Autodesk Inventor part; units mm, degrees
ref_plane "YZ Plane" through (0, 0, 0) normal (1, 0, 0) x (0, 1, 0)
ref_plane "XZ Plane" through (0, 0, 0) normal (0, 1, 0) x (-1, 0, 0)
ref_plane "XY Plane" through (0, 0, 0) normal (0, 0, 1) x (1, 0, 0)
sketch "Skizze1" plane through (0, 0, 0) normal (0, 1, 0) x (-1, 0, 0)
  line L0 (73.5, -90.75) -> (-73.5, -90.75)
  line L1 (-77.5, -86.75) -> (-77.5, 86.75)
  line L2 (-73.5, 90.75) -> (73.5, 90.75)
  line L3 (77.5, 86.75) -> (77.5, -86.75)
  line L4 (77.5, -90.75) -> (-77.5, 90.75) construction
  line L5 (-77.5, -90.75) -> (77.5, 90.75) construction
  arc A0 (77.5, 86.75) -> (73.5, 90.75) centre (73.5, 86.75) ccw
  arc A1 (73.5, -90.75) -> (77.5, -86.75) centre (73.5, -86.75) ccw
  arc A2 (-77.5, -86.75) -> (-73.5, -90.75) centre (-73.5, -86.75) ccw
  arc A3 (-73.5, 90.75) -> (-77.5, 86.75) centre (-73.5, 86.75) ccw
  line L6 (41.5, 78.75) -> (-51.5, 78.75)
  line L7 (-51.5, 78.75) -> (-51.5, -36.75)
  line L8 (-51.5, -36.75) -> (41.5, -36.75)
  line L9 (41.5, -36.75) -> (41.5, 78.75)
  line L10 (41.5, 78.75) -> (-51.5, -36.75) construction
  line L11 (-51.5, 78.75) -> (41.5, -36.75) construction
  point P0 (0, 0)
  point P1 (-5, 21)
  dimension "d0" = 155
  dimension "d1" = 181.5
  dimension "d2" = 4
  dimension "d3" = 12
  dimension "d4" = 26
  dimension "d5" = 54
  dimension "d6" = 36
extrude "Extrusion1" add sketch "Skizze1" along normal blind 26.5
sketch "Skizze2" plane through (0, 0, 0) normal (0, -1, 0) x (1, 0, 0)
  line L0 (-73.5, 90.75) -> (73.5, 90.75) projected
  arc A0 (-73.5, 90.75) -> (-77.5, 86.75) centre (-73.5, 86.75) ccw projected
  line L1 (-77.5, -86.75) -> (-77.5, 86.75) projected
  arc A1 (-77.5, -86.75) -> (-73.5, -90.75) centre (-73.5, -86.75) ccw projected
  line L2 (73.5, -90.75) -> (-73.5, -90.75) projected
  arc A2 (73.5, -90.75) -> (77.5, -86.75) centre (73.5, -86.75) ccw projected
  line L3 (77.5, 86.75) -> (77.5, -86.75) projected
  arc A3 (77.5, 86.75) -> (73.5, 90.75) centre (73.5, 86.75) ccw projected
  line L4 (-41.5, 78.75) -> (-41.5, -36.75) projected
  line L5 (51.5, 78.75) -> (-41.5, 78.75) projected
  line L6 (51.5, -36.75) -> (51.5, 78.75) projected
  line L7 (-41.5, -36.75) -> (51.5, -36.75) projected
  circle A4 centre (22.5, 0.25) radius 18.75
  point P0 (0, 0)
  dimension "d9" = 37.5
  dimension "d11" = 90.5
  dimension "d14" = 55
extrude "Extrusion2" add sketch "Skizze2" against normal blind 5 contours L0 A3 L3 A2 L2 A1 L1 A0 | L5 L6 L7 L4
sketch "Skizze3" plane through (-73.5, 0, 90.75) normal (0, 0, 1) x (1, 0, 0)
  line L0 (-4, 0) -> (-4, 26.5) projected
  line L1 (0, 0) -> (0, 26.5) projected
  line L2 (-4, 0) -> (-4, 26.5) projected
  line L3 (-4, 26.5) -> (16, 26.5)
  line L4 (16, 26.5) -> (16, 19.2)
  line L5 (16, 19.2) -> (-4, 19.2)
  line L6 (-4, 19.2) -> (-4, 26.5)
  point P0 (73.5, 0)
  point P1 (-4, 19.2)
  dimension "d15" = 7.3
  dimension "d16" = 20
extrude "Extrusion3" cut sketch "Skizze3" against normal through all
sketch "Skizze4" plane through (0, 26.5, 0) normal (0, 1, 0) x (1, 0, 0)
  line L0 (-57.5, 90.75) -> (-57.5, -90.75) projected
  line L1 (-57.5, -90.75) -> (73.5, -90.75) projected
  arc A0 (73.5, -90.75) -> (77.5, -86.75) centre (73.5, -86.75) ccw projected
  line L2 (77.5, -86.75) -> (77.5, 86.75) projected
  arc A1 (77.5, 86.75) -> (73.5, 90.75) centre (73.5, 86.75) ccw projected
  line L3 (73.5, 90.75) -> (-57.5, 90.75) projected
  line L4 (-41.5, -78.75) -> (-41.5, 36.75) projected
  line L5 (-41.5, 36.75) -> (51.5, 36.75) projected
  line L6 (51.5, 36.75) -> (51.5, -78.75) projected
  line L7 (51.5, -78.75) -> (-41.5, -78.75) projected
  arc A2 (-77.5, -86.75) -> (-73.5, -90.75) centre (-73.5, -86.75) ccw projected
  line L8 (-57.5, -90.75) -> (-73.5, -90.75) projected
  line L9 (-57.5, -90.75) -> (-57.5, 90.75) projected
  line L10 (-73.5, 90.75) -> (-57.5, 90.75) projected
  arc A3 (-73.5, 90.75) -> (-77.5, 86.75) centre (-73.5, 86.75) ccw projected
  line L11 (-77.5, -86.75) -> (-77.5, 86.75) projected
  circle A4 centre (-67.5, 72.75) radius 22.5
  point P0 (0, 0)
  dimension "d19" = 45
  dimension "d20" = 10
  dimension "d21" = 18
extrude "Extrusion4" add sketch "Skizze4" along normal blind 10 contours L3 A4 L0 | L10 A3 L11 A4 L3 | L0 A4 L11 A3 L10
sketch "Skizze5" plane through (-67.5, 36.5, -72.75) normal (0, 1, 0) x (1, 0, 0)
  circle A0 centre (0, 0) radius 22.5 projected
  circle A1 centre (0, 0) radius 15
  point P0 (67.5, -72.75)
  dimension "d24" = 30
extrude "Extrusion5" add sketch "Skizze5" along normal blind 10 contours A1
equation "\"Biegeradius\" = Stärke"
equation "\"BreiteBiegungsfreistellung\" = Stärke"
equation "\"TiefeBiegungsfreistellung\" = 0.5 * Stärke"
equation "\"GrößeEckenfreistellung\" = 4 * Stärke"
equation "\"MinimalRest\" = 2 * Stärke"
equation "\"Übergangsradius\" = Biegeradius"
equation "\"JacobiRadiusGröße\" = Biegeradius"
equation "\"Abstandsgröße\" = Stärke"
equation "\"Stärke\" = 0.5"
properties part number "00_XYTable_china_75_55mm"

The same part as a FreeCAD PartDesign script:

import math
import FreeCAD as App
import Part
import Sketcher

V = App.Vector


def add_polygon(sketch, points):
    """Adds a closed chain of lines whose ends are joined by coincident constraints."""
    first, n = sketch.GeometryCount, len(points)
    for a, b in zip(points, points[1:] + points[:1]):
        sketch.addGeometry(Part.LineSegment(App.Vector(*a, 0), App.Vector(*b, 0)), False)
    for i in range(n):
        sketch.addConstraint(Sketcher.Constraint("Coincident", first + i, 2, first + (i + 1) % n, 1))

doc = App.newDocument("Part")
params = doc.addObject("Spreadsheet::Sheet", "Params")
for row, (alias, value) in enumerate([
    ("sketch1_radius", "4 mm"),
    ("sketch1_height", "173.5 mm"),
    ("pad1_length", "26.5 mm"),
    ("sketch2_diameter", "37.5 mm"),
    ("sketch2_radius", "4 mm"),
    ("sketch2_width", "147 mm"),
    ("sketch2_height", "173.5 mm"),
    ("pad2_length", "5 mm"),
    ("sketch3_width", "20 mm"),
    ("sketch3_height", "7.3 mm"),
    ("sketch4_diameter", "45 mm"),
    ("pad3_length", "10 mm"),
    ("sketch5_diameter", "30 mm"),
    ("pad4_length", "10 mm"),
], start=1):
    params.set(f"A{row}", alias)
    params.set(f"B{row}", "=" + value)
    params.setAlias(f"B{row}", alias)

body = doc.addObject("PartDesign::Body", "Body")

# Sketch on XZ plane
sketch1 = body.newObject("Sketcher::SketchObject", "Sketch")
sketch1.AttachmentSupport = (doc.getObject("XZ_Plane"), [""])
sketch1.MapMode = "FlatFace"
sketch1.addGeometry(Part.LineSegment(V(73.5, -90.8, 0), V(-73.5, -90.8, 0)), False)  # 0
sketch1.addGeometry(Part.ArcOfCircle(Part.Circle(V(-73.5, -86.8, 0), V(0, 0, 1), 4), math.radians(180), math.radians(270)), False)  # 1
sketch1.addGeometry(Part.LineSegment(V(-77.5, -86.8, 0), V(-77.5, 86.8, 0)), False)  # 2
sketch1.addGeometry(Part.ArcOfCircle(Part.Circle(V(-73.5, 86.8, 0), V(0, 0, 1), 4), math.radians(90), math.radians(180)), False)  # 3
sketch1.addGeometry(Part.LineSegment(V(-73.5, 90.8, 0), V(73.5, 90.8, 0)), False)  # 4
sketch1.addGeometry(Part.ArcOfCircle(Part.Circle(V(73.5, 86.8, 0), V(0, 0, 1), 4), math.radians(0), math.radians(90)), False)  # 5
sketch1.addGeometry(Part.LineSegment(V(77.5, 86.8, 0), V(77.5, -86.8, 0)), False)  # 6
sketch1.addGeometry(Part.ArcOfCircle(Part.Circle(V(73.5, -86.8, 0), V(0, 0, 1), 4), math.radians(-90), math.radians(0)), False)  # 7
add_polygon(sketch1, [(51.5, 78.8), (-41.5, 78.8), (-41.5, -36.8), (51.5, -36.8)])  # lines 8-11
sketch1.addConstraint(Sketcher.Constraint("Tangent", 0, 2, 1, 2))
sketch1.addConstraint(Sketcher.Constraint("Tangent", 1, 1, 2, 1))
sketch1.addConstraint(Sketcher.Constraint("Tangent", 2, 2, 3, 2))
sketch1.addConstraint(Sketcher.Constraint("Tangent", 3, 1, 4, 1))
sketch1.addConstraint(Sketcher.Constraint("Tangent", 4, 2, 5, 2))
sketch1.addConstraint(Sketcher.Constraint("Tangent", 5, 1, 6, 1))
sketch1.addConstraint(Sketcher.Constraint("Tangent", 6, 2, 7, 2))
sketch1.addConstraint(Sketcher.Constraint("Tangent", 7, 1, 0, 1))
sketch1.addConstraint(Sketcher.Constraint("Horizontal", 0))
sketch1.addConstraint(Sketcher.Constraint("Vertical", 2))
sketch1.addConstraint(Sketcher.Constraint("Horizontal", 4))
sketch1.addConstraint(Sketcher.Constraint("Vertical", 6))
sketch1.addConstraint(Sketcher.Constraint("Horizontal", 8))
sketch1.addConstraint(Sketcher.Constraint("Vertical", 9))
sketch1.addConstraint(Sketcher.Constraint("Horizontal", 10))
sketch1.addConstraint(Sketcher.Constraint("Vertical", 11))
sketch1.addConstraint(Sketcher.Constraint("Equal", 1, 3))
sketch1.addConstraint(Sketcher.Constraint("Equal", 3, 5))
sketch1.addConstraint(Sketcher.Constraint("Equal", 5, 7))
sketch1.addConstraint(Sketcher.Constraint("Symmetric", 1, 3, 5, 3, -1, 1))
sketch1.addConstraint(Sketcher.Constraint("Radius", 1, 4.0))
sketch1.addConstraint(Sketcher.Constraint("DistanceX", 2, 2, 5, 1, 155.0))
sketch1.addConstraint(Sketcher.Constraint("DistanceY", 8, 2, 3, 1, 12.0))
sketch1.addConstraint(Sketcher.Constraint("DistanceX", 2, 2, 8, 2, 36.0))
sketch1.addConstraint(Sketcher.Constraint("DistanceY", 0, 2, 9, 2, 54.0))
sketch1.addConstraint(Sketcher.Constraint("DistanceX", 10, 2, 6, 2, 26.0))
sketch1.addConstraint(Sketcher.Constraint("DistanceY", 2, 1, 2, 2, 173.5))
sketch1.setExpression("Constraints[24]", "Params.sketch1_radius")
sketch1.setExpression("Constraints[30]", "Params.sketch1_height")
pad1 = body.newObject("PartDesign::Pad", "Pad")
pad1.Profile = sketch1
pad1.setExpression("Length", "Params.pad1_length")
pad1.Reversed = True

# Sketch on XZ plane
sketch2 = body.newObject("Sketcher::SketchObject", "Sketch001")
sketch2.AttachmentSupport = (doc.getObject("XZ_Plane"), [""])
sketch2.MapMode = "FlatFace"
sketch2.addGeometry(Part.LineSegment(V(73.5, 90.8, 0), V(-73.5, 90.8, 0)), False)
sketch2.addGeometry(Part.ArcOfCircle(Part.Circle(V(-73.5, 86.8, 0), V(0, 0, 1), 4), math.radians(90), math.radians(180)), False)
sketch2.addGeometry(Part.LineSegment(V(-77.5, 86.8, 0), V(-77.5, -86.8, 0)), False)
sketch2.addGeometry(Part.ArcOfCircle(Part.Circle(V(-73.5, -86.8, 0), V(0, 0, 1), 4), math.radians(180), math.radians(270)), False)
sketch2.addGeometry(Part.LineSegment(V(-73.5, -90.8, 0), V(73.5, -90.8, 0)), False)
sketch2.addGeometry(Part.ArcOfCircle(Part.Circle(V(73.5, -86.8, 0), V(0, 0, 1), 4), math.radians(-90), math.radians(0)), False)
sketch2.addGeometry(Part.LineSegment(V(77.5, -86.8, 0), V(77.5, 86.8, 0)), False)
sketch2.addGeometry(Part.ArcOfCircle(Part.Circle(V(73.5, 86.8, 0), V(0, 0, 1), 4), math.radians(0), math.radians(90)), False)
sketch2.addGeometry(Part.Circle(V(22.5, 0.2, 0), V(0, 0, 1), 18.8), False)
sketch2.addConstraint(Sketcher.Constraint("Tangent", 0, 2, 1, 1))
sketch2.addConstraint(Sketcher.Constraint("Tangent", 1, 2, 2, 1))
sketch2.addConstraint(Sketcher.Constraint("Tangent", 2, 2, 3, 1))
sketch2.addConstraint(Sketcher.Constraint("Tangent", 3, 2, 4, 1))
sketch2.addConstraint(Sketcher.Constraint("Tangent", 4, 2, 5, 1))
sketch2.addConstraint(Sketcher.Constraint("Tangent", 5, 2, 6, 1))
sketch2.addConstraint(Sketcher.Constraint("Tangent", 6, 2, 7, 1))
sketch2.addConstraint(Sketcher.Constraint("Tangent", 7, 2, 0, 1))
sketch2.addConstraint(Sketcher.Constraint("Horizontal", 0))
sketch2.addConstraint(Sketcher.Constraint("Vertical", 2))
sketch2.addConstraint(Sketcher.Constraint("Horizontal", 4))
sketch2.addConstraint(Sketcher.Constraint("Vertical", 6))
sketch2.addConstraint(Sketcher.Constraint("Equal", 1, 3))
sketch2.addConstraint(Sketcher.Constraint("Equal", 3, 5))
sketch2.addConstraint(Sketcher.Constraint("Equal", 5, 7))
sketch2.addConstraint(Sketcher.Constraint("Symmetric", 1, 3, 5, 3, -1, 1))
sketch2.addConstraint(Sketcher.Constraint("Diameter", 8, 37.5))
sketch2.addConstraint(Sketcher.Constraint("Radius", 1, 4.0))
sketch2.addConstraint(Sketcher.Constraint("DistanceX", 8, 3, 5, 2, 55.0))
sketch2.addConstraint(Sketcher.Constraint("DistanceY", 8, 3, 0, 2, 90.5))
sketch2.addConstraint(Sketcher.Constraint("DistanceX", 0, 2, 0, 1, 147.0))
sketch2.addConstraint(Sketcher.Constraint("DistanceY", 2, 2, 2, 1, 173.5))
sketch2.setExpression("Constraints[16]", "Params.sketch2_diameter")
sketch2.setExpression("Constraints[17]", "Params.sketch2_radius")
sketch2.setExpression("Constraints[20]", "Params.sketch2_width")
sketch2.setExpression("Constraints[21]", "Params.sketch2_height")
pad2 = body.newObject("PartDesign::Pad", "Pad001")
pad2.Profile = sketch2
pad2.setExpression("Length", "Params.pad2_length")
pad2.Reversed = True

# Sketch on XY plane
sketch3 = body.newObject("Sketcher::SketchObject", "Sketch002")
sketch3.AttachmentSupport = (doc.getObject("XY_Plane"), [""])
sketch3.MapMode = "FlatFace"
sketch3.AttachmentOffset = App.Placement(V(0, 0, 90.75), App.Rotation())
add_polygon(sketch3, [(-78, 26), (-78, 19), (-58, 19), (-58, 26)])  # lines 0-3
sketch3.addConstraint(Sketcher.Constraint("Vertical", 0))
sketch3.addConstraint(Sketcher.Constraint("Horizontal", 1))
sketch3.addConstraint(Sketcher.Constraint("Vertical", 2))
sketch3.addConstraint(Sketcher.Constraint("Horizontal", 3))
sketch3.addConstraint(Sketcher.Constraint("DistanceX", 1, 1, 1, 2, 20.0))
sketch3.addConstraint(Sketcher.Constraint("DistanceY", 0, 2, 0, 1, 7.3))
sketch3.addConstraint(Sketcher.Constraint("DistanceX", 0, 2, -1, 1, 77.5))
sketch3.addConstraint(Sketcher.Constraint("DistanceY", -1, 1, 0, 2, 19.2))
sketch3.setExpression("Constraints[8]", "Params.sketch3_width")
sketch3.setExpression("Constraints[9]", "Params.sketch3_height")
pocket1 = body.newObject("PartDesign::Pocket", "Pocket")
pocket1.Profile = sketch3
pocket1.Type = "ThroughAll"

# Sketch on XZ plane
sketch4 = body.newObject("Sketcher::SketchObject", "Sketch003")
sketch4.AttachmentSupport = (doc.getObject("XZ_Plane"), [""])
sketch4.MapMode = "FlatFace"
sketch4.AttachmentOffset = App.Placement(V(0, 0, -26.5), App.Rotation())
sketch4.addGeometry(Part.Circle(V(-68, -73, 0), V(0, 0, 1), 22), False)
sketch4.addConstraint(Sketcher.Constraint("Diameter", 0, 45.0))
sketch4.addConstraint(Sketcher.Constraint("DistanceX", 0, 3, -1, 1, 67.5))
sketch4.addConstraint(Sketcher.Constraint("DistanceY", 0, 3, -1, 1, 72.75))
sketch4.setExpression("Constraints[0]", "Params.sketch4_diameter")
pad3 = body.newObject("PartDesign::Pad", "Pad002")
pad3.Profile = sketch4
pad3.setExpression("Length", "Params.pad3_length")
pad3.Reversed = True

# Sketch on XZ plane
sketch5 = body.newObject("Sketcher::SketchObject", "Sketch004")
sketch5.AttachmentSupport = (doc.getObject("XZ_Plane"), [""])
sketch5.MapMode = "FlatFace"
sketch5.AttachmentOffset = App.Placement(V(0, 0, -36.5), App.Rotation())
sketch5.addGeometry(Part.Circle(V(-68, -73, 0), V(0, 0, 1), 15), False)
sketch5.addConstraint(Sketcher.Constraint("Diameter", 0, 30.0))
sketch5.addConstraint(Sketcher.Constraint("DistanceX", 0, 3, -1, 1, 67.5))
sketch5.addConstraint(Sketcher.Constraint("DistanceY", 0, 3, -1, 1, 72.75))
sketch5.setExpression("Constraints[0]", "Params.sketch5_diameter")
pad4 = body.newObject("PartDesign::Pad", "Pad003")
pad4.Profile = sketch5
pad4.setExpression("Length", "Params.pad4_length")
pad4.Reversed = True

doc.recompute()
